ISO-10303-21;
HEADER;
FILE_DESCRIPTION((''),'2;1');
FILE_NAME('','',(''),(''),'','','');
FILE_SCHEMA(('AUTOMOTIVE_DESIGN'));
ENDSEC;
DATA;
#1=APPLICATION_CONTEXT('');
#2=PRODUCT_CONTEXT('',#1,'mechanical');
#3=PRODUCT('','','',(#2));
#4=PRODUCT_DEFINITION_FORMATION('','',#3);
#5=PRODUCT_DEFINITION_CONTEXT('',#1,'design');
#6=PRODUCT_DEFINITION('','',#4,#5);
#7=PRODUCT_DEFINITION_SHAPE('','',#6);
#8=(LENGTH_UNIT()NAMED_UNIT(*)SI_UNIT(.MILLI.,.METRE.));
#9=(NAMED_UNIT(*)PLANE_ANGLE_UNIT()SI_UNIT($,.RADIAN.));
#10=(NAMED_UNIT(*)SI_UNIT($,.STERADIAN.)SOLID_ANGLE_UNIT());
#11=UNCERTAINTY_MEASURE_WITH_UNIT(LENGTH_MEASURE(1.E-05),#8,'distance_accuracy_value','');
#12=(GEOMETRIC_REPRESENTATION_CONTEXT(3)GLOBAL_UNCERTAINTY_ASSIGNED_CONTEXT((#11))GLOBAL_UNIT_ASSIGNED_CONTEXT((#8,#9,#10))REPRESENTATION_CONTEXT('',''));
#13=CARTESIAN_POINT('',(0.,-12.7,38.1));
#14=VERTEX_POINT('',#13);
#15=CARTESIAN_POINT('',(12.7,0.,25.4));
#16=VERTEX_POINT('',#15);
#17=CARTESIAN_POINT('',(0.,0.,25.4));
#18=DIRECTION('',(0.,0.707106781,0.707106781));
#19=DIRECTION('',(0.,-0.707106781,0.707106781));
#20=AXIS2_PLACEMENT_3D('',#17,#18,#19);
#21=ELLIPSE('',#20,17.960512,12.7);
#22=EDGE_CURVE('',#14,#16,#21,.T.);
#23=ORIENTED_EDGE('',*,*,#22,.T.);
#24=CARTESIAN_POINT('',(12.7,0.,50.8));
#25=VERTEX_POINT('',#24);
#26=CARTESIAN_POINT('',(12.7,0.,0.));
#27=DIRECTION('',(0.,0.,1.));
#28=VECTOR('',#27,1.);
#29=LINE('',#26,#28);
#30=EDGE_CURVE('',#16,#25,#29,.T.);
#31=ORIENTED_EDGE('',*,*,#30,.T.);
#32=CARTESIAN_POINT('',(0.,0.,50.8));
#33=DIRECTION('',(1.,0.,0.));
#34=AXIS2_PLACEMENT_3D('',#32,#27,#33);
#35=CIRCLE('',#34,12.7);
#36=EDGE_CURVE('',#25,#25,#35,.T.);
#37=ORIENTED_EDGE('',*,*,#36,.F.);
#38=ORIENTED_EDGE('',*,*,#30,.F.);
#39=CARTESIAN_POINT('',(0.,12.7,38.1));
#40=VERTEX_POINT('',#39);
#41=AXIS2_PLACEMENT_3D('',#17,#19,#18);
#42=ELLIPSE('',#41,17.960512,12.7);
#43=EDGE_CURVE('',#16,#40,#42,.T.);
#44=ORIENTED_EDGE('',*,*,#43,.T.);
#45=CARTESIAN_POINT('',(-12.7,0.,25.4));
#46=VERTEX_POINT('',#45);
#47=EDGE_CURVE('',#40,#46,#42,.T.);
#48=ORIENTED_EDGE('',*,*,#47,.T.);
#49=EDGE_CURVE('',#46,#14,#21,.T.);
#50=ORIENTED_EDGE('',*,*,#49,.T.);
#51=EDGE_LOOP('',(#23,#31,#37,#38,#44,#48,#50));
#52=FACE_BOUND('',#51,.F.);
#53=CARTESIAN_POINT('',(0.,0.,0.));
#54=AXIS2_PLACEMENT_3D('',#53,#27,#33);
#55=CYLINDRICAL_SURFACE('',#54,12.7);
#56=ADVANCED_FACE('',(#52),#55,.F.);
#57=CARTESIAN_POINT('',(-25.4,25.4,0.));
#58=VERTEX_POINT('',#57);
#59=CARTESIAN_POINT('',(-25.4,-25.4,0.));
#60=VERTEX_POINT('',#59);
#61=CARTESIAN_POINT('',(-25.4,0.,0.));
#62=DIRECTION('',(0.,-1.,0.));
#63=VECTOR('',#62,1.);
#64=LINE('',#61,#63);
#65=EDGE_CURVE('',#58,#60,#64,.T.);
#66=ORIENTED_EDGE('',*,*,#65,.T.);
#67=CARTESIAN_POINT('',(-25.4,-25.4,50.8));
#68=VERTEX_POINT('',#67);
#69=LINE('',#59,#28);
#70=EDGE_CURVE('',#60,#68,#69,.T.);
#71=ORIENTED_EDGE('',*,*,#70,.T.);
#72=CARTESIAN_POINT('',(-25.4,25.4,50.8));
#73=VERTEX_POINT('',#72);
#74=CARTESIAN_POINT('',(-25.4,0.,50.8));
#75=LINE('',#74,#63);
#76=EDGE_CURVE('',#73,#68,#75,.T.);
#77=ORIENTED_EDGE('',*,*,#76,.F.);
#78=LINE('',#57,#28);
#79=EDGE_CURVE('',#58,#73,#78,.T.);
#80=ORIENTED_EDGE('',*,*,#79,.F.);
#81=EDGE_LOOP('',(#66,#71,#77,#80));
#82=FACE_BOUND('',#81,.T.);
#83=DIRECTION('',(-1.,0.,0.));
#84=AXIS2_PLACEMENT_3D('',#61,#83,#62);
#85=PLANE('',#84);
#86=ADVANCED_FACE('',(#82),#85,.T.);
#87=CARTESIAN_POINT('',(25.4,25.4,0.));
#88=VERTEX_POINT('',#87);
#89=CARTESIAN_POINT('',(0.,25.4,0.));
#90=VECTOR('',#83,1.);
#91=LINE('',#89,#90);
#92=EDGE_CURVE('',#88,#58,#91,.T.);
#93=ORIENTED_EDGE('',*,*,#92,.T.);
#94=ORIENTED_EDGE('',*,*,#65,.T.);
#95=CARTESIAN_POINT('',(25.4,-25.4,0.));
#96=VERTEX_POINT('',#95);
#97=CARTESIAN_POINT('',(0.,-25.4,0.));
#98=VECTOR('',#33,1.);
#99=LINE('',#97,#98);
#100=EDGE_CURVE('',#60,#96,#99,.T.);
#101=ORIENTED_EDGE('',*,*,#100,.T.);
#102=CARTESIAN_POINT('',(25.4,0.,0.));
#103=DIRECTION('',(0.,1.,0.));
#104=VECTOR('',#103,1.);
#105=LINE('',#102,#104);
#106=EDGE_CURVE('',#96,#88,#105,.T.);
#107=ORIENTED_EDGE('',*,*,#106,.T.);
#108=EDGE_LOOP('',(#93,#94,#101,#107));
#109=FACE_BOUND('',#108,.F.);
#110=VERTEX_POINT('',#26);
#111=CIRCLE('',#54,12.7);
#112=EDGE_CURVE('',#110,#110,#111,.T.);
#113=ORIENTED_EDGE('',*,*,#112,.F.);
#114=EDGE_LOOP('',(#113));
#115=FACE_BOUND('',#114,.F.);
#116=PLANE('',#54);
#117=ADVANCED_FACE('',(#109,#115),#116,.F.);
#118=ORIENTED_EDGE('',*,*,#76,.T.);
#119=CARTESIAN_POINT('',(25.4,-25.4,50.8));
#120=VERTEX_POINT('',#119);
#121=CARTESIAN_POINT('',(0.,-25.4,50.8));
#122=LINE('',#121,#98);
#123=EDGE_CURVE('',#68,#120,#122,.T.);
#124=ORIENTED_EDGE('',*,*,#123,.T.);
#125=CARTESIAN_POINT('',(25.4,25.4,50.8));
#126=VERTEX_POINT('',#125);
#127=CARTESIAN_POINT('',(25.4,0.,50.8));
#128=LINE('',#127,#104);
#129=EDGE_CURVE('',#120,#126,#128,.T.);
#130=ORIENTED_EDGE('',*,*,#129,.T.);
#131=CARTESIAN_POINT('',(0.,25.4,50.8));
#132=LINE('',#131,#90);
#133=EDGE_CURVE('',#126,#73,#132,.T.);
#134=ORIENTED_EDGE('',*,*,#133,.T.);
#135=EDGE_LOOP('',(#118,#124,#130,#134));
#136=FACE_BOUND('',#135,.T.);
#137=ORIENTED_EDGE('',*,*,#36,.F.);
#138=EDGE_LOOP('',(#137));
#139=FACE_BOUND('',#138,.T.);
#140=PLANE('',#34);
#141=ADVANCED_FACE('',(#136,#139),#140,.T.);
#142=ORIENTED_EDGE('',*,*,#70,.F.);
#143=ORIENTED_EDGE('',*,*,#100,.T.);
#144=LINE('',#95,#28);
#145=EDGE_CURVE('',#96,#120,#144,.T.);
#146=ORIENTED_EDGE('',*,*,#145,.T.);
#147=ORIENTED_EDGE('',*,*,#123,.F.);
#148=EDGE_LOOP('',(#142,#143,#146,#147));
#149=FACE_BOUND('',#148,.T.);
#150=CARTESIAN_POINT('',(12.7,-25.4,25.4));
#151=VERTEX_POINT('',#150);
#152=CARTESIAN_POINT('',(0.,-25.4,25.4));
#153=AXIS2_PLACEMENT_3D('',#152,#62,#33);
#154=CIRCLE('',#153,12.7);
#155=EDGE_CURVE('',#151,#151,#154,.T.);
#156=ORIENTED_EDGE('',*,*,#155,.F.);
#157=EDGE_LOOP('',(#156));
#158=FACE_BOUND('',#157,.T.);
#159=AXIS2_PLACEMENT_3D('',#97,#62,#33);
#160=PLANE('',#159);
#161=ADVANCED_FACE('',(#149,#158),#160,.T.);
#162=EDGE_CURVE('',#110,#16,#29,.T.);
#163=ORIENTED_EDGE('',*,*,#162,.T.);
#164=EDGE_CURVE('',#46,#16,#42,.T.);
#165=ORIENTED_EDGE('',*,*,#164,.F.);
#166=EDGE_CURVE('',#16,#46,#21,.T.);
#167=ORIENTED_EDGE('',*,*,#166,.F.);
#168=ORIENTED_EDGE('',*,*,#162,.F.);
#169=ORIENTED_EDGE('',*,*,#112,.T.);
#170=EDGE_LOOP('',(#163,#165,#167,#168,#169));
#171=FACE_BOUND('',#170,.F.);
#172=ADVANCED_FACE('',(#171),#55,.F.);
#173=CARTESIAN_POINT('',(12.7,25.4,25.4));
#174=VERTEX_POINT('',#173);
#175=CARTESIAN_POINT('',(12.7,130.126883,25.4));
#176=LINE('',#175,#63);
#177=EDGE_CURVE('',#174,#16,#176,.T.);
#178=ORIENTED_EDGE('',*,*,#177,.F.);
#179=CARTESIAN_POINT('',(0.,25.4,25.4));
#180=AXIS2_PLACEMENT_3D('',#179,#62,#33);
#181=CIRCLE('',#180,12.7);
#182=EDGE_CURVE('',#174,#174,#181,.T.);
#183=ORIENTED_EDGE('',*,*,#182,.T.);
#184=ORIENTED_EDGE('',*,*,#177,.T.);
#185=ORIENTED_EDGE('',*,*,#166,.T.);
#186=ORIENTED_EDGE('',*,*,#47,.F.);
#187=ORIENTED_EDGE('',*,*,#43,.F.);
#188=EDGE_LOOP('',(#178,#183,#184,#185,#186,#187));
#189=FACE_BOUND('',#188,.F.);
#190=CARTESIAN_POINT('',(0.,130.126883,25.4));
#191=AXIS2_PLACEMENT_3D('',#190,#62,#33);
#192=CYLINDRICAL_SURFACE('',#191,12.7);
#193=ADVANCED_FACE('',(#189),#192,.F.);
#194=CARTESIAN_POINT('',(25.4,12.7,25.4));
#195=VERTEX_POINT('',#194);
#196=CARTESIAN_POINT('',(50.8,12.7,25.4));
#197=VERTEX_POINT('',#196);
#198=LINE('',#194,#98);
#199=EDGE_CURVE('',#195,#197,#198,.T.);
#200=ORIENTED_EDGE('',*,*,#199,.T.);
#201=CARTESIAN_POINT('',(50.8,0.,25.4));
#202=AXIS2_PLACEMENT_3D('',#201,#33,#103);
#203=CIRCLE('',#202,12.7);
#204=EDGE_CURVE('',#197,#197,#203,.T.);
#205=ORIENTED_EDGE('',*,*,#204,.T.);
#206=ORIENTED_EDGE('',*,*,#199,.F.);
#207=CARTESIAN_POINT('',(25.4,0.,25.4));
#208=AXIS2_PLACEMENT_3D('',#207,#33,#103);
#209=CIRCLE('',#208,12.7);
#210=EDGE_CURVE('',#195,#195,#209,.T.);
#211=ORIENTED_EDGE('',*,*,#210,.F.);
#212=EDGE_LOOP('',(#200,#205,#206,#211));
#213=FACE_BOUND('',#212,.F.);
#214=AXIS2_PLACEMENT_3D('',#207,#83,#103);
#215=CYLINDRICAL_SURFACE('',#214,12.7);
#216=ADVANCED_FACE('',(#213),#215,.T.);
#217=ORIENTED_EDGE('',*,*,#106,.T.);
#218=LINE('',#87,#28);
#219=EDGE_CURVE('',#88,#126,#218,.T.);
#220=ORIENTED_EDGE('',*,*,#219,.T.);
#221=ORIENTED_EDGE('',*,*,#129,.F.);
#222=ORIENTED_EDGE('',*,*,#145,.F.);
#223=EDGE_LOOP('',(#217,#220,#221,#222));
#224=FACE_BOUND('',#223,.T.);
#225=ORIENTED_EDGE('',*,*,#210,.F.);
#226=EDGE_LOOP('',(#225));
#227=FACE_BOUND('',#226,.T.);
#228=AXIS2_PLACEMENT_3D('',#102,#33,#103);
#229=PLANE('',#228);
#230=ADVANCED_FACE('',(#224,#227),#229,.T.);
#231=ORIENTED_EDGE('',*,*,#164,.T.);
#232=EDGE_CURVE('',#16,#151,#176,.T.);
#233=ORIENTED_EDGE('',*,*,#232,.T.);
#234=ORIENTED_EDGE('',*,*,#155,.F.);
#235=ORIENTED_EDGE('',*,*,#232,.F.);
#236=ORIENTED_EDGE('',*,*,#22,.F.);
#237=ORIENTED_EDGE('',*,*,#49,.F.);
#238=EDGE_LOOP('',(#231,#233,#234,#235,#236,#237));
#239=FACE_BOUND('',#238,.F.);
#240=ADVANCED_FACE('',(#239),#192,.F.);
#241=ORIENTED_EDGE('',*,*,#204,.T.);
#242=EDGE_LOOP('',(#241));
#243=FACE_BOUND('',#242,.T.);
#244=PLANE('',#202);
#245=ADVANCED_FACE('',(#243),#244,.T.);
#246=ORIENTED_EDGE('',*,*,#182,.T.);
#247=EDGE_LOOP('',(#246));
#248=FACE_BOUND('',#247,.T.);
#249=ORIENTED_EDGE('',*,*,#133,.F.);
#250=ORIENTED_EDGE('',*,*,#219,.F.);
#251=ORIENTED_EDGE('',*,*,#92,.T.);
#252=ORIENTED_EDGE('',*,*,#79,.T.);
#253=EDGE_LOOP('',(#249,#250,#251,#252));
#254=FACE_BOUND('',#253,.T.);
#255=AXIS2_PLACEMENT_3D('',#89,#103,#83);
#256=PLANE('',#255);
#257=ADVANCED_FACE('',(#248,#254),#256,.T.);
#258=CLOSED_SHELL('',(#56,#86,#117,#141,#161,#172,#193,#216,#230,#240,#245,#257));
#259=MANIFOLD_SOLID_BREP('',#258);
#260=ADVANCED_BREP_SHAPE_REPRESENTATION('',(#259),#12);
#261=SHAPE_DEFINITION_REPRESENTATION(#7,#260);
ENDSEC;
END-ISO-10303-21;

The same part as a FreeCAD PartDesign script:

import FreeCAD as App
import Part
import Sketcher
Q = App.Units.Quantity


def add_polygon(sketch, points):
    """Adds a closed chain of lines whose ends are joined by coincident constraints."""
    first, n = sketch.GeometryCount, len(points)
    for a, b in zip(points, points[1:] + points[:1]):
        sketch.addGeometry(Part.LineSegment(App.Vector(*a, 0), App.Vector(*b, 0)), False)
    for i in range(n):
        sketch.addConstraint(Sketcher.Constraint("Coincident", first + i, 2, first + (i + 1) % n, 1))

doc = App.newDocument("Part")
body = doc.addObject("PartDesign::Body", "Body")

# Sketch on XY plane
sketch1 = body.newObject("Sketcher::SketchObject", "Sketch")
sketch1.AttachmentSupport = (doc.getObject("XY_Plane"), [""])
sketch1.MapMode = "FlatFace"
add_polygon(sketch1, [(-25, 25), (-25, -25), (25, -25), (25, 25)])  # lines 0-3
sketch1.addGeometry(Part.Circle(App.Vector(0, 0, 0), App.Vector(0, 0, 1), 13), False)  # 4
sketch1.addConstraint(Sketcher.Constraint("Vertical", 0))
sketch1.addConstraint(Sketcher.Constraint("Horizontal", 1))
sketch1.addConstraint(Sketcher.Constraint("Vertical", 2))
sketch1.addConstraint(Sketcher.Constraint("Horizontal", 3))
sketch1.addConstraint(Sketcher.Constraint("Coincident", 4, 3, -1, 1))
sketch1.addConstraint(Sketcher.Constraint("Symmetric", 0, 2, 2, 2, -1, 1))
sketch1.addConstraint(Sketcher.Constraint("Equal", 3, 0))
sketch1.addConstraint(Sketcher.Constraint("Diameter", 4, Q("1 in")))
sketch1.addConstraint(Sketcher.Constraint("DistanceX", 1, 1, 1, 2, Q("2 in")))

# Sketch on XZ plane
sketch2 = body.newObject("Sketcher::SketchObject", "Sketch001")
sketch2.AttachmentSupport = (doc.getObject("XZ_Plane"), [""])
sketch2.MapMode = "FlatFace"
sketch2.addGeometry(Part.LineSegment(App.Vector(0, 0, 0), App.Vector(0, 51, 0)), False)
sketch2.addConstraint(Sketcher.Constraint("Vertical", 0))
sketch2.addConstraint(Sketcher.Constraint("Coincident", 0, 1, -1, 1))
sketch2.addConstraint(Sketcher.Constraint("DistanceY", 0, 1, 0, 2, Q("2 in")))
doc.recompute()

additivepipe = body.newObject("PartDesign::AdditivePipe", "AdditivePipe")
additivepipe.Profile = sketch1
additivepipe.Spine = (sketch2, ["Edge1"])

# Sketch on YZ plane
sketch3 = body.newObject("Sketcher::SketchObject", "Sketch002")
sketch3.AttachmentSupport = (doc.getObject("YZ_Plane"), [""])
sketch3.MapMode = "FlatFace"
sketch3.AttachmentOffset = App.Placement(App.Vector(0, 0, 1 * 25.4), App.Rotation())
sketch3.addGeometry(Part.Circle(App.Vector(0, 25, 0), App.Vector(0, 0, 1), 13), False)
sketch3.addConstraint(Sketcher.Constraint("PointOnObject", 0, 3, -2))
sketch3.addConstraint(Sketcher.Constraint("Diameter", 0, Q("1 in")))
sketch3.addConstraint(Sketcher.Constraint("DistanceY", -1, 1, 0, 3, Q("1 in")))
pad1 = body.newObject("PartDesign::Pad", "Pad")
pad1.Profile = sketch3
pad1.Length = Q("1 in")

# Sketch on XZ plane
sketch4 = body.newObject("Sketcher::SketchObject", "Sketch003")
sketch4.AttachmentSupport = (doc.getObject("XZ_Plane"), [""])
sketch4.MapMode = "FlatFace"
sketch4.AttachmentOffset = App.Placement(App.Vector(0, 0, -1 * 25.4), App.Rotation())
sketch4.addGeometry(Part.Circle(App.Vector(0, 25, 0), App.Vector(0, 0, 1), 13), False)
sketch4.addConstraint(Sketcher.Constraint("PointOnObject", 0, 3, -2))
sketch4.addConstraint(Sketcher.Constraint("Diameter", 0, Q("1 in")))
sketch4.addConstraint(Sketcher.Constraint("DistanceY", -1, 1, 0, 3, Q("1 in")))
doc.recompute()
hole = body.newObject("PartDesign::Hole", "Hole")
hole.Profile = sketch4
hole.ThreadType = "None"
hole.Diameter = Q("1 in")
hole.DepthType = "ThroughAll"
hole.Reversed = True

doc.recompute()
